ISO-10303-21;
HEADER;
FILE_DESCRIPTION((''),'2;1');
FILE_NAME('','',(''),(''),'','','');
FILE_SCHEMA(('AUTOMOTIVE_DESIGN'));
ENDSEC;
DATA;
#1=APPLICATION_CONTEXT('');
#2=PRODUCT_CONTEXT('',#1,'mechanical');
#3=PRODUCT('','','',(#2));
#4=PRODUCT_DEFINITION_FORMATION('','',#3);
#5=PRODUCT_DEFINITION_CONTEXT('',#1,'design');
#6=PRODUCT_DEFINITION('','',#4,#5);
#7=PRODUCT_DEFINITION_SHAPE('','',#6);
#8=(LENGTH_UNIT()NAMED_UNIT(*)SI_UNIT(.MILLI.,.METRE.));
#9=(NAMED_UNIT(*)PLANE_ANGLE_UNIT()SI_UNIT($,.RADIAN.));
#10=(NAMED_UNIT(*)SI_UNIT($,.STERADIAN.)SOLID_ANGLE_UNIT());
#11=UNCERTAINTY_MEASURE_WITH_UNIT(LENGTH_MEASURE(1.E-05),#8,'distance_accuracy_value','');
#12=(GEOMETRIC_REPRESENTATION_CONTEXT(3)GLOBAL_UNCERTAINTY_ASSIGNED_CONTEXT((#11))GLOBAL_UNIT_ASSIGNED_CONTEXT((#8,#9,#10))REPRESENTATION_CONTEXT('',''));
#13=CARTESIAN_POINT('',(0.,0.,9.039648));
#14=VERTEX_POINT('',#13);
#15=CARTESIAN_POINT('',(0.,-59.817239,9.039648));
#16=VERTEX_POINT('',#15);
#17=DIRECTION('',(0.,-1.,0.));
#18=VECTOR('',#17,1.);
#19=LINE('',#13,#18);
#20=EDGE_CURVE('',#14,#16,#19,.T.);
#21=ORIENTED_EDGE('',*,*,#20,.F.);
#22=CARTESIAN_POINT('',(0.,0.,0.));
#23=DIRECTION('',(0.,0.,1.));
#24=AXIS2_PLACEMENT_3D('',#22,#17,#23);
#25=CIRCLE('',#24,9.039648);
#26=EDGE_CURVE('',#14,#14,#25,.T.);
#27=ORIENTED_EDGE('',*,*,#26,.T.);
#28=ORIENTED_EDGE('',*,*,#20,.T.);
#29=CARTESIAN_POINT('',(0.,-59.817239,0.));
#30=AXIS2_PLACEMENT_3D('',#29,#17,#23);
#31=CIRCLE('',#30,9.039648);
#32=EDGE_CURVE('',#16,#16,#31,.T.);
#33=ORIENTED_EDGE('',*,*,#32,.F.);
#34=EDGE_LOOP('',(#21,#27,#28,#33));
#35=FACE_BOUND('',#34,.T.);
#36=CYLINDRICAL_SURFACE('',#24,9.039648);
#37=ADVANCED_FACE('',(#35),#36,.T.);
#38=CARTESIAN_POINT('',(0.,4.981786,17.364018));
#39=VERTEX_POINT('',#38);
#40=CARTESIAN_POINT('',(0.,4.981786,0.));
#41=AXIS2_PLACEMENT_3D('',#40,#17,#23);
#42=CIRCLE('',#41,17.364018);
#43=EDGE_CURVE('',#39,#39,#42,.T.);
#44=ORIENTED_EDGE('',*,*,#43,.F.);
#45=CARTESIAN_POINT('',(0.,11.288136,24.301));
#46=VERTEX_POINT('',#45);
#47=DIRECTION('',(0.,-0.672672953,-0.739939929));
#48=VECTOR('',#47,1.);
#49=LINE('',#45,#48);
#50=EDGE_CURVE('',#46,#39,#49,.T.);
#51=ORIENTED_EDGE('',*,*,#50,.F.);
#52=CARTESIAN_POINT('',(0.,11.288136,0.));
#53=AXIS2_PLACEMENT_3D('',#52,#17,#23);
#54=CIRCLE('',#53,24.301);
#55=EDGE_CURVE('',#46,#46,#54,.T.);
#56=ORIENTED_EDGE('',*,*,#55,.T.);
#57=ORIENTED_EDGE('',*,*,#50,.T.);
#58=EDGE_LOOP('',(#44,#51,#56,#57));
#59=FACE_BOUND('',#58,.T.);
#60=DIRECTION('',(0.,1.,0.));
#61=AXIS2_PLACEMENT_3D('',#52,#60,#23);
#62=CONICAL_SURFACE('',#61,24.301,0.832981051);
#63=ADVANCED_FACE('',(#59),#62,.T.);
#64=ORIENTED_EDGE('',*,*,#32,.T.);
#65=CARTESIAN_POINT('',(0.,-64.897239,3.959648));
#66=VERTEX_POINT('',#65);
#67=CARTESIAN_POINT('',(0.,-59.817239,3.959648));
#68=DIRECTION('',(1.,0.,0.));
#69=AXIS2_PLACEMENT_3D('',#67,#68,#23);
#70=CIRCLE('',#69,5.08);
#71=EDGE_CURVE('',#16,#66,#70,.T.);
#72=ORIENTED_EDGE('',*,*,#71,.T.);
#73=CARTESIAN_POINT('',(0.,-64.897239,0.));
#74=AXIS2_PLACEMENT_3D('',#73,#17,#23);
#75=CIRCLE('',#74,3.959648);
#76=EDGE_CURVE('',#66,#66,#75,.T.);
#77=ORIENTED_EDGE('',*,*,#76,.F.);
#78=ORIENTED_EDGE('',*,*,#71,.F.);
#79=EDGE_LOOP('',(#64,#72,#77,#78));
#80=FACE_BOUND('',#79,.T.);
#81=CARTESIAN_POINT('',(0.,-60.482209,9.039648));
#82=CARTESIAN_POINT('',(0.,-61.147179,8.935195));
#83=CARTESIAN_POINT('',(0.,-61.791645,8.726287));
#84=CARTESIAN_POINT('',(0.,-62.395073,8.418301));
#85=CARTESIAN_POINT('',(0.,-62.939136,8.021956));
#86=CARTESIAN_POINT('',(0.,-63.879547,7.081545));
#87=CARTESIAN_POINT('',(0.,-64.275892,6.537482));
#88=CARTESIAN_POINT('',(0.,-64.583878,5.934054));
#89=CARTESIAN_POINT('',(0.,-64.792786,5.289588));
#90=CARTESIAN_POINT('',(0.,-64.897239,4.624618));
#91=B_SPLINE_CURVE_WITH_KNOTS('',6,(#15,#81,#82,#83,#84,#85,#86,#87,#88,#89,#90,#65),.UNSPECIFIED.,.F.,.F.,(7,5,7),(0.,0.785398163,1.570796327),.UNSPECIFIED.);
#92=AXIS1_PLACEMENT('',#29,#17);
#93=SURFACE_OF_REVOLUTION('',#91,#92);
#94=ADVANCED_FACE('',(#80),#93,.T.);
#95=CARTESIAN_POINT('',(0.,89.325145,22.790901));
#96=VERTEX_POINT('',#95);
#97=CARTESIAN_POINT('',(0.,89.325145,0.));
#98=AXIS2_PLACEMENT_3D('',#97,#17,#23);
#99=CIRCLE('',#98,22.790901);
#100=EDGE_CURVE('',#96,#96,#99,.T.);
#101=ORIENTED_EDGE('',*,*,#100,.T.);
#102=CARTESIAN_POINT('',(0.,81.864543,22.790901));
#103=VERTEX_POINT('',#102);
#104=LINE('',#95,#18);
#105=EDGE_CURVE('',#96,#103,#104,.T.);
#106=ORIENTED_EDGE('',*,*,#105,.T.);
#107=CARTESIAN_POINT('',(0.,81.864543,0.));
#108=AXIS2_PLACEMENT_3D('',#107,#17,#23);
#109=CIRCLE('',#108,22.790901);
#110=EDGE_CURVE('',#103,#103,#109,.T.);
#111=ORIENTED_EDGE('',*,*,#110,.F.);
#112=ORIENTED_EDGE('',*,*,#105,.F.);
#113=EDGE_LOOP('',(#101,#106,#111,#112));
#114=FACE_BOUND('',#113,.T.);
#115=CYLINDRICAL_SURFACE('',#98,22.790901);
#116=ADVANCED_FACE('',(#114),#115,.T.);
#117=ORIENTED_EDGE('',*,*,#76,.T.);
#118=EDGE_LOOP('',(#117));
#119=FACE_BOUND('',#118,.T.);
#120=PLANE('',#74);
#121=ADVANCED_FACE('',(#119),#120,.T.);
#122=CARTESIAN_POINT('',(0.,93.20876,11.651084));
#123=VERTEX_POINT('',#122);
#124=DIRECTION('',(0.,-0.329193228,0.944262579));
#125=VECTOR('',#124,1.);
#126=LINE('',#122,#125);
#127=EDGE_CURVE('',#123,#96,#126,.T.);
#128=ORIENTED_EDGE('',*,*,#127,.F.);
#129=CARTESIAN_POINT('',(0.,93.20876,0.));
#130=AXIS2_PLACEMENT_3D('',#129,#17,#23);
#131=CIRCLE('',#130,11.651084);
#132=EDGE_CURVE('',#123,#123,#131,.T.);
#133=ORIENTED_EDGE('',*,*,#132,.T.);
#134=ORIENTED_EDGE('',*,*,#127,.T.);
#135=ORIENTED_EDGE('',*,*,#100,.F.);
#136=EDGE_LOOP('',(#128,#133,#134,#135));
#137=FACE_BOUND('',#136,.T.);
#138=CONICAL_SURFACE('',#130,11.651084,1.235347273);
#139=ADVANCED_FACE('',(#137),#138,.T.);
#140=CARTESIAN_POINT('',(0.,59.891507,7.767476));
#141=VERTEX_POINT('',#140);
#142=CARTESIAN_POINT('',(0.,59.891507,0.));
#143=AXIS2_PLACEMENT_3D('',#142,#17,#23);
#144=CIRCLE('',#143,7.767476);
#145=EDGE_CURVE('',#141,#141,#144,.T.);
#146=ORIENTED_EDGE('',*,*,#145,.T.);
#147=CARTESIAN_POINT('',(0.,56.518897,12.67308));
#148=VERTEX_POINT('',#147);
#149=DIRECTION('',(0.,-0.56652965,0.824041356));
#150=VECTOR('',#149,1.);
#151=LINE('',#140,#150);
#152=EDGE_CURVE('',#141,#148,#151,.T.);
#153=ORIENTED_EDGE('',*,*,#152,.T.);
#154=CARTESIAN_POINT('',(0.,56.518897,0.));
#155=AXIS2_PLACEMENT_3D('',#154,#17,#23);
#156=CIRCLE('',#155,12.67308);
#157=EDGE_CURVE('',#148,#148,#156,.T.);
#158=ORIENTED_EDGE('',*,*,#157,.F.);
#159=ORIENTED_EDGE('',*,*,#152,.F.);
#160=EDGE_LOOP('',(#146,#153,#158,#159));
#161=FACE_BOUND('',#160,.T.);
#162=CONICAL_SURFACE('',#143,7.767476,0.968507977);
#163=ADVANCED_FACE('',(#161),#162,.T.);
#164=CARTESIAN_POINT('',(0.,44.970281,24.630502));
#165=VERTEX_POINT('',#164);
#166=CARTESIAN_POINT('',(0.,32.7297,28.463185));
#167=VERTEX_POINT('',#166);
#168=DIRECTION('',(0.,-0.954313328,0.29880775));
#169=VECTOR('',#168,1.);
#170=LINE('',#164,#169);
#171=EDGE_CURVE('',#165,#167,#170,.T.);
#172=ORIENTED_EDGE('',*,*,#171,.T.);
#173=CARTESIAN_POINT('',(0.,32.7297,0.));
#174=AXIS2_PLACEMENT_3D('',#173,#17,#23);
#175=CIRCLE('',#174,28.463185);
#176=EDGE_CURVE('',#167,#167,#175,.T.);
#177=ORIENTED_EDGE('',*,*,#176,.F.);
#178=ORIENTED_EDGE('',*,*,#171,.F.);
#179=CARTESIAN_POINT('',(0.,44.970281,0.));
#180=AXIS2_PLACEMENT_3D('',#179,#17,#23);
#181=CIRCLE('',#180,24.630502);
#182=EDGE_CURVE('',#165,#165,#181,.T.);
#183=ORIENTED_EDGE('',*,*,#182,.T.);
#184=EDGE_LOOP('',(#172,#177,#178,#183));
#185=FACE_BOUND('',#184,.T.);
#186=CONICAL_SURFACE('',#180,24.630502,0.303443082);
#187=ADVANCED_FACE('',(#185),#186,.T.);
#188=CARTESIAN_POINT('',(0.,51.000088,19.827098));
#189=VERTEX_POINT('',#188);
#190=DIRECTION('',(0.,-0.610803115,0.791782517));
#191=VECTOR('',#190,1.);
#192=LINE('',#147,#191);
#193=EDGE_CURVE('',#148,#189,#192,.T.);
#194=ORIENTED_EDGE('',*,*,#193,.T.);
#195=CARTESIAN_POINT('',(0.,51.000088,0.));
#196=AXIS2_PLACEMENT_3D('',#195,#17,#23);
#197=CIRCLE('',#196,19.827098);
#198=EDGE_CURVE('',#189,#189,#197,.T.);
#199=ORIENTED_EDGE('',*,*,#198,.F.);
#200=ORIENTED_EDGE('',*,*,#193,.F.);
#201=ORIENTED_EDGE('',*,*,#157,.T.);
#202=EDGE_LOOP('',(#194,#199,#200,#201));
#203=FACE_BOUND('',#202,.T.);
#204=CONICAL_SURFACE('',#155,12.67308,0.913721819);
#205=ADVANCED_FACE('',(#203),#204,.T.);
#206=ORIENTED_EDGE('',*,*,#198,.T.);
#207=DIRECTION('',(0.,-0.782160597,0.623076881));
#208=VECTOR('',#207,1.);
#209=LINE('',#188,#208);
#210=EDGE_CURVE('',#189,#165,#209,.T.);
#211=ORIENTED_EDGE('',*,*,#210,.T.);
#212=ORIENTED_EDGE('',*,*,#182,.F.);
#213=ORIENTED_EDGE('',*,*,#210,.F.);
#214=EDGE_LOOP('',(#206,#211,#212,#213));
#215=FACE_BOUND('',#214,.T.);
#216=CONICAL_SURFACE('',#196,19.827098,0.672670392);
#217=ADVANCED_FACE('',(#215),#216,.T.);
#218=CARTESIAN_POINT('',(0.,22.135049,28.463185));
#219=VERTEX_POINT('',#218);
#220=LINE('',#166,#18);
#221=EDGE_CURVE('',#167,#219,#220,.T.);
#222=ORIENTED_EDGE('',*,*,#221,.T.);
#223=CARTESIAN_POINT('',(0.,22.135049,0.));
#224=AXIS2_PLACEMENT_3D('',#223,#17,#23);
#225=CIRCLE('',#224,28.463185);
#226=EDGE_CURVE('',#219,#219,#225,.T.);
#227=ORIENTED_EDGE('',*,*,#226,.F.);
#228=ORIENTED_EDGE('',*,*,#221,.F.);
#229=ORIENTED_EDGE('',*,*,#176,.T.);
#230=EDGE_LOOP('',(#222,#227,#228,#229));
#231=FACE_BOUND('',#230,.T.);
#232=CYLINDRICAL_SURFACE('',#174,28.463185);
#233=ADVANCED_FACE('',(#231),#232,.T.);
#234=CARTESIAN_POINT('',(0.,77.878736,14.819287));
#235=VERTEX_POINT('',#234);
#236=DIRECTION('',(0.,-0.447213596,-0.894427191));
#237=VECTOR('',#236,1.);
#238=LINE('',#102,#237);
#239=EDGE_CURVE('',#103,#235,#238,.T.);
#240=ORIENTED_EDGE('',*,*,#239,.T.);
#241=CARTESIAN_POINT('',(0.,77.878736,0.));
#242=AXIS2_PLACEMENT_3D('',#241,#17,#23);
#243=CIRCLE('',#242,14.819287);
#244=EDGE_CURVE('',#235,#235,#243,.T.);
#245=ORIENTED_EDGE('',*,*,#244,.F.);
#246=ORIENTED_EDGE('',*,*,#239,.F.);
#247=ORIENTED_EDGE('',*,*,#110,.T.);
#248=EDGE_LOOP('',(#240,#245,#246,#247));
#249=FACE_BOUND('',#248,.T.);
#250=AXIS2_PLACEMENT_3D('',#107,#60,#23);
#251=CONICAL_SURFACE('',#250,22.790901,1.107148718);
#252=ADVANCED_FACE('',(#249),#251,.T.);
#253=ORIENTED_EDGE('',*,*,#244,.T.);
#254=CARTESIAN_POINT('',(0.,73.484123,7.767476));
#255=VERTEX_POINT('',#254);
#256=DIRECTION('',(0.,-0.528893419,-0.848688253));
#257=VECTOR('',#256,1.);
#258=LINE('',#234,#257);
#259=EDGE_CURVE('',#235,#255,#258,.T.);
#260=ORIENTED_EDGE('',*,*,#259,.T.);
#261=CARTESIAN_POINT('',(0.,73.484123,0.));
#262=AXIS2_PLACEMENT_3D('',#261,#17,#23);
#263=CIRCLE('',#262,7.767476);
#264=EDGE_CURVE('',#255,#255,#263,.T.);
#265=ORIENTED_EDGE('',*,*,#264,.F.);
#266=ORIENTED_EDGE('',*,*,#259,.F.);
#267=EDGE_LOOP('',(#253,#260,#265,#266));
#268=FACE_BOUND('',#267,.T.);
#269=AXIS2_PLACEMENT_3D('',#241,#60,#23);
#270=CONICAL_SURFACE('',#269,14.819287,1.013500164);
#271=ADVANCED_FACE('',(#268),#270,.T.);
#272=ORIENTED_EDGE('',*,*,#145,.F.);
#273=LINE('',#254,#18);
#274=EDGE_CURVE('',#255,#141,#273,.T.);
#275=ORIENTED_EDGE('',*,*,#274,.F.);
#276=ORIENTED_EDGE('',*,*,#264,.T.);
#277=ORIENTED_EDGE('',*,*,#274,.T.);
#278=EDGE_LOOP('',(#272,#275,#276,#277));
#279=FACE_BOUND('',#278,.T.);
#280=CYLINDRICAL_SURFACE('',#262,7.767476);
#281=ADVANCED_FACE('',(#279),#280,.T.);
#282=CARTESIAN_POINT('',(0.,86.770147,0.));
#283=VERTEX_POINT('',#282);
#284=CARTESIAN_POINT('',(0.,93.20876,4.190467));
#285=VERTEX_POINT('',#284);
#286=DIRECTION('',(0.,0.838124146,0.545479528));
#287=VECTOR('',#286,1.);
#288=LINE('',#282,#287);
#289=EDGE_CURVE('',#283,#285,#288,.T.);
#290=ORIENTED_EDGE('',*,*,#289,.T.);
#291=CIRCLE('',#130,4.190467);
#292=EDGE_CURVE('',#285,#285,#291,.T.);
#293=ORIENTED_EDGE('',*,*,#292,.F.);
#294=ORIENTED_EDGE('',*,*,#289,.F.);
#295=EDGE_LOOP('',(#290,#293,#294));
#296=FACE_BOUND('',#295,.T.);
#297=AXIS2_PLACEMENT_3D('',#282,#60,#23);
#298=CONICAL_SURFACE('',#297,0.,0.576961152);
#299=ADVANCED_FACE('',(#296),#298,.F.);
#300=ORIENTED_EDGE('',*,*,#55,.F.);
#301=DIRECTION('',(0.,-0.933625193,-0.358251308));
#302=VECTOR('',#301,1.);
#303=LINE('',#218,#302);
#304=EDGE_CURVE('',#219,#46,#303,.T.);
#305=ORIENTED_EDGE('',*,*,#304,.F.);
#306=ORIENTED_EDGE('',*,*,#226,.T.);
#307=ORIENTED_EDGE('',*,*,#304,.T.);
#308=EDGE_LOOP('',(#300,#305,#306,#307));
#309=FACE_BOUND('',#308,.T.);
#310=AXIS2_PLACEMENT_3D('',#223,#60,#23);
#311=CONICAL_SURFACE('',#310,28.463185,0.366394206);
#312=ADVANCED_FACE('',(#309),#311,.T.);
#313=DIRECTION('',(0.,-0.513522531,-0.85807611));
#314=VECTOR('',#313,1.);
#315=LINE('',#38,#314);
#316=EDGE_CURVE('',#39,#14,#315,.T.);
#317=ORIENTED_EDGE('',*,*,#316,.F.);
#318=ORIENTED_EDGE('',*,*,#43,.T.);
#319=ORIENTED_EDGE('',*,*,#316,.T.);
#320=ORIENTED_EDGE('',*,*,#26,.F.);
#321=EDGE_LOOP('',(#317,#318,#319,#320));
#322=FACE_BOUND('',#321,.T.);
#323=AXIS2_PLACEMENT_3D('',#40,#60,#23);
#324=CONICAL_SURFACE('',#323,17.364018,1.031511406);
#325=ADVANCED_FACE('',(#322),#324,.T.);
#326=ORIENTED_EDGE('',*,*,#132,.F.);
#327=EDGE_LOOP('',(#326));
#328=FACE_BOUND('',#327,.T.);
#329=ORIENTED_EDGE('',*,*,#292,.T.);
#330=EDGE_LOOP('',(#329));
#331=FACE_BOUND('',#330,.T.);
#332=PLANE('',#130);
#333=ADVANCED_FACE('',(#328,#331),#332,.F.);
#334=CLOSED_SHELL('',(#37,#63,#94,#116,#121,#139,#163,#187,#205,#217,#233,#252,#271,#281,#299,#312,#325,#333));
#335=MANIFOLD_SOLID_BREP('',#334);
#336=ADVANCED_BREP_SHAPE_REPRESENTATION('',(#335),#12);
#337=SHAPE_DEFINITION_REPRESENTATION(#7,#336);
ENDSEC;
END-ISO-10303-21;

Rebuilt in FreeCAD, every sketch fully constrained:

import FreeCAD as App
import Part
import Sketcher

V = App.Vector
Q = App.Units.Quantity


def edges_at(feature, points):
    """Names of the edges that pass closest to the given points."""
    edges = feature.Shape.Edges
    near = lambda p: min(range(len(edges)), key=lambda i: edges[i].distToShape(Part.Vertex(*p))[0])
    return sorted({f"Edge{near(p) + 1}" for p in points})

doc = App.newDocument("Part")
body = doc.addObject("PartDesign::Body", "Body")

sketch1 = doc.addObject("Sketcher::SketchObject", "Sketch")
body.addObject(sketch1)
sketch1.AttachmentSupport = (doc.YZ_Plane, [""])
sketch1.MapMode = "FlatFace"
sketch1.addGeometry([
    Part.LineSegment(V(-64.897239, 0, 0), V(86.770147, 0, 0)),
    Part.LineSegment(V(86.770147, 0, 0), V(93.20876, 4.190467, 0)),
    Part.LineSegment(V(93.20876, 4.190467, 0), V(93.20876, 11.651084, 0)),
    Part.LineSegment(V(93.20876, 11.651084, 0), V(89.325145, 22.790901, 0)),
    Part.LineSegment(V(89.325145, 22.790901, 0), V(81.864543, 22.790901, 0)),
    Part.LineSegment(V(81.864543, 22.790901, 0), V(77.878736, 14.819287, 0)),
    Part.LineSegment(V(77.878736, 14.819287, 0), V(73.484123, 7.767476, 0)),
    Part.LineSegment(V(73.484123, 7.767476, 0), V(59.891507, 7.767476, 0)),
    Part.LineSegment(V(59.891507, 7.767476, 0), V(56.518897, 12.67308, 0)),
    Part.LineSegment(V(56.518897, 12.67308, 0), V(51.000088, 19.827098, 0)),
    Part.LineSegment(V(51.000088, 19.827098, 0), V(44.970281, 24.630502, 0)),
    Part.LineSegment(V(44.970281, 24.630502, 0), V(32.7297, 28.463185, 0)),
    Part.LineSegment(V(32.7297, 28.463185, 0), V(22.135049, 28.463185, 0)),
    Part.LineSegment(V(22.135049, 28.463185, 0), V(11.288136, 24.301, 0)),
    Part.LineSegment(V(11.288136, 24.301, 0), V(4.981786, 17.364018, 0)),
    Part.LineSegment(V(4.981786, 17.364018, 0), V(0, 9.039648, 0)),
    Part.LineSegment(V(0, 9.039648, 0), V(-64.897239, 9.039648, 0)),
    Part.LineSegment(V(-64.897239, 9.039648, 0), V(-64.897239, 0, 0)),
], False)
sketch1.addConstraint([
    Sketcher.Constraint("Coincident", 0, 2, 1, 1),
    Sketcher.Constraint("Coincident", 1, 2, 2, 1),
    Sketcher.Constraint("Coincident", 2, 2, 3, 1),
    Sketcher.Constraint("Coincident", 3, 2, 4, 1),
    Sketcher.Constraint("Coincident", 4, 2, 5, 1),
    Sketcher.Constraint("Coincident", 5, 2, 6, 1),
    Sketcher.Constraint("Coincident", 6, 2, 7, 1),
    Sketcher.Constraint("Coincident", 7, 2, 8, 1),
    Sketcher.Constraint("Coincident", 8, 2, 9, 1),
    Sketcher.Constraint("Coincident", 9, 2, 10, 1),
    Sketcher.Constraint("Coincident", 10, 2, 11, 1),
    Sketcher.Constraint("Coincident", 11, 2, 12, 1),
    Sketcher.Constraint("Coincident", 12, 2, 13, 1),
    Sketcher.Constraint("Coincident", 13, 2, 14, 1),
    Sketcher.Constraint("Coincident", 14, 2, 15, 1),
    Sketcher.Constraint("Coincident", 15, 2, 16, 1),
    Sketcher.Constraint("Coincident", 16, 2, 17, 1),
    Sketcher.Constraint("Coincident", 17, 2, 0, 1),
    Sketcher.Constraint("Horizontal", 0),
    Sketcher.Constraint("Vertical", 2),
    Sketcher.Constraint("Horizontal", 4),
    Sketcher.Constraint("Horizontal", 7),
    Sketcher.Constraint("Horizontal", 12),
    Sketcher.Constraint("Horizontal", 16),
    Sketcher.Constraint("Vertical", 17),
    Sketcher.Constraint("PointOnObject", 0, 2, -1),
    Sketcher.Constraint("PointOnObject", 15, 2, -2),
    Sketcher.Constraint("DistanceX", 12, 2, 12, 1, 10.594651),
    Sketcher.Constraint("DistanceX", 16, 2, 16, 1, 64.897239),
    Sketcher.Constraint("DistanceY", -1, 1, 3, 2, 22.790901),
    Sketcher.Constraint("DistanceY", -1, 1, 10, 2, 24.630502),
    Sketcher.Constraint("DistanceX", -1, 1, 11, 2, 32.7297),
    Sketcher.Constraint("DistanceY", -1, 1, 13, 2, 24.301),
    Sketcher.Constraint("DistanceX", 0, 2, 3, 2, 2.554998),
    Sketcher.Constraint("DistanceY", 9, 2, 13, 2, 4.473902),
    Sketcher.Constraint("DistanceX", 14, 2, 9, 2, 46.018302),
    Sketcher.Constraint("Distance", 1, 7.682171),
    Sketcher.Constraint("Distance", 6, 8.309071),
    Sketcher.Constraint("Distance", 13, 11.618059),
    Sketcher.Constraint("Distance", 14, 9.375061),
    Sketcher.Constraint("DistanceX", 0, 1, 0, 2, 151.667386),
    Sketcher.Constraint("DistanceX", 4, 2, 4, 1, 7.460602),
    Sketcher.Constraint("DistanceX", 7, 2, 7, 1, 13.592616),
    Sketcher.Constraint("DistanceY", 2, 1, 2, 2, 7.460617),
    Sketcher.Constraint("DistanceY", 17, 2, 17, 1, 9.039648),
    Sketcher.Constraint("DistanceX", -1, 1, 1, 2, 93.20876),
    Sketcher.Constraint("DistanceY", -1, 1, 8, 2, 12.67308),
    Sketcher.Constraint("DistanceX", -1, 1, 10, 2, 44.970281),
    Sketcher.Constraint("DistanceY", -1, 1, 14, 2, 17.364018),
    Sketcher.Constraint("DistanceX", 5, 2, 3, 2, 11.446409),
    Sketcher.Constraint("DistanceY", 1, 2, 5, 2, 10.62882),
    Sketcher.Constraint("DistanceY", 6, 2, 5, 2, 7.051811),
    Sketcher.Constraint("DistanceX", 8, 2, 7, 2, 3.37261),
    Sketcher.Constraint("DistanceX", 9, 2, 8, 2, 5.518809),
])
revolution = doc.addObject("PartDesign::Revolution", "Revolution")
body.addObject(revolution)
revolution.Profile = sketch1
revolution.ReferenceAxis = (sketch1, ["H_Axis"])
revolution.Angle = 360
doc.recompute()

fillet = doc.addObject("PartDesign::Fillet", "Fillet")
body.addObject(fillet)
fillet.Base = (revolution, edges_at(revolution, [(0, -64.897, -9.04)]))
fillet.Radius = Q("0.2 in")

doc.recompute()
